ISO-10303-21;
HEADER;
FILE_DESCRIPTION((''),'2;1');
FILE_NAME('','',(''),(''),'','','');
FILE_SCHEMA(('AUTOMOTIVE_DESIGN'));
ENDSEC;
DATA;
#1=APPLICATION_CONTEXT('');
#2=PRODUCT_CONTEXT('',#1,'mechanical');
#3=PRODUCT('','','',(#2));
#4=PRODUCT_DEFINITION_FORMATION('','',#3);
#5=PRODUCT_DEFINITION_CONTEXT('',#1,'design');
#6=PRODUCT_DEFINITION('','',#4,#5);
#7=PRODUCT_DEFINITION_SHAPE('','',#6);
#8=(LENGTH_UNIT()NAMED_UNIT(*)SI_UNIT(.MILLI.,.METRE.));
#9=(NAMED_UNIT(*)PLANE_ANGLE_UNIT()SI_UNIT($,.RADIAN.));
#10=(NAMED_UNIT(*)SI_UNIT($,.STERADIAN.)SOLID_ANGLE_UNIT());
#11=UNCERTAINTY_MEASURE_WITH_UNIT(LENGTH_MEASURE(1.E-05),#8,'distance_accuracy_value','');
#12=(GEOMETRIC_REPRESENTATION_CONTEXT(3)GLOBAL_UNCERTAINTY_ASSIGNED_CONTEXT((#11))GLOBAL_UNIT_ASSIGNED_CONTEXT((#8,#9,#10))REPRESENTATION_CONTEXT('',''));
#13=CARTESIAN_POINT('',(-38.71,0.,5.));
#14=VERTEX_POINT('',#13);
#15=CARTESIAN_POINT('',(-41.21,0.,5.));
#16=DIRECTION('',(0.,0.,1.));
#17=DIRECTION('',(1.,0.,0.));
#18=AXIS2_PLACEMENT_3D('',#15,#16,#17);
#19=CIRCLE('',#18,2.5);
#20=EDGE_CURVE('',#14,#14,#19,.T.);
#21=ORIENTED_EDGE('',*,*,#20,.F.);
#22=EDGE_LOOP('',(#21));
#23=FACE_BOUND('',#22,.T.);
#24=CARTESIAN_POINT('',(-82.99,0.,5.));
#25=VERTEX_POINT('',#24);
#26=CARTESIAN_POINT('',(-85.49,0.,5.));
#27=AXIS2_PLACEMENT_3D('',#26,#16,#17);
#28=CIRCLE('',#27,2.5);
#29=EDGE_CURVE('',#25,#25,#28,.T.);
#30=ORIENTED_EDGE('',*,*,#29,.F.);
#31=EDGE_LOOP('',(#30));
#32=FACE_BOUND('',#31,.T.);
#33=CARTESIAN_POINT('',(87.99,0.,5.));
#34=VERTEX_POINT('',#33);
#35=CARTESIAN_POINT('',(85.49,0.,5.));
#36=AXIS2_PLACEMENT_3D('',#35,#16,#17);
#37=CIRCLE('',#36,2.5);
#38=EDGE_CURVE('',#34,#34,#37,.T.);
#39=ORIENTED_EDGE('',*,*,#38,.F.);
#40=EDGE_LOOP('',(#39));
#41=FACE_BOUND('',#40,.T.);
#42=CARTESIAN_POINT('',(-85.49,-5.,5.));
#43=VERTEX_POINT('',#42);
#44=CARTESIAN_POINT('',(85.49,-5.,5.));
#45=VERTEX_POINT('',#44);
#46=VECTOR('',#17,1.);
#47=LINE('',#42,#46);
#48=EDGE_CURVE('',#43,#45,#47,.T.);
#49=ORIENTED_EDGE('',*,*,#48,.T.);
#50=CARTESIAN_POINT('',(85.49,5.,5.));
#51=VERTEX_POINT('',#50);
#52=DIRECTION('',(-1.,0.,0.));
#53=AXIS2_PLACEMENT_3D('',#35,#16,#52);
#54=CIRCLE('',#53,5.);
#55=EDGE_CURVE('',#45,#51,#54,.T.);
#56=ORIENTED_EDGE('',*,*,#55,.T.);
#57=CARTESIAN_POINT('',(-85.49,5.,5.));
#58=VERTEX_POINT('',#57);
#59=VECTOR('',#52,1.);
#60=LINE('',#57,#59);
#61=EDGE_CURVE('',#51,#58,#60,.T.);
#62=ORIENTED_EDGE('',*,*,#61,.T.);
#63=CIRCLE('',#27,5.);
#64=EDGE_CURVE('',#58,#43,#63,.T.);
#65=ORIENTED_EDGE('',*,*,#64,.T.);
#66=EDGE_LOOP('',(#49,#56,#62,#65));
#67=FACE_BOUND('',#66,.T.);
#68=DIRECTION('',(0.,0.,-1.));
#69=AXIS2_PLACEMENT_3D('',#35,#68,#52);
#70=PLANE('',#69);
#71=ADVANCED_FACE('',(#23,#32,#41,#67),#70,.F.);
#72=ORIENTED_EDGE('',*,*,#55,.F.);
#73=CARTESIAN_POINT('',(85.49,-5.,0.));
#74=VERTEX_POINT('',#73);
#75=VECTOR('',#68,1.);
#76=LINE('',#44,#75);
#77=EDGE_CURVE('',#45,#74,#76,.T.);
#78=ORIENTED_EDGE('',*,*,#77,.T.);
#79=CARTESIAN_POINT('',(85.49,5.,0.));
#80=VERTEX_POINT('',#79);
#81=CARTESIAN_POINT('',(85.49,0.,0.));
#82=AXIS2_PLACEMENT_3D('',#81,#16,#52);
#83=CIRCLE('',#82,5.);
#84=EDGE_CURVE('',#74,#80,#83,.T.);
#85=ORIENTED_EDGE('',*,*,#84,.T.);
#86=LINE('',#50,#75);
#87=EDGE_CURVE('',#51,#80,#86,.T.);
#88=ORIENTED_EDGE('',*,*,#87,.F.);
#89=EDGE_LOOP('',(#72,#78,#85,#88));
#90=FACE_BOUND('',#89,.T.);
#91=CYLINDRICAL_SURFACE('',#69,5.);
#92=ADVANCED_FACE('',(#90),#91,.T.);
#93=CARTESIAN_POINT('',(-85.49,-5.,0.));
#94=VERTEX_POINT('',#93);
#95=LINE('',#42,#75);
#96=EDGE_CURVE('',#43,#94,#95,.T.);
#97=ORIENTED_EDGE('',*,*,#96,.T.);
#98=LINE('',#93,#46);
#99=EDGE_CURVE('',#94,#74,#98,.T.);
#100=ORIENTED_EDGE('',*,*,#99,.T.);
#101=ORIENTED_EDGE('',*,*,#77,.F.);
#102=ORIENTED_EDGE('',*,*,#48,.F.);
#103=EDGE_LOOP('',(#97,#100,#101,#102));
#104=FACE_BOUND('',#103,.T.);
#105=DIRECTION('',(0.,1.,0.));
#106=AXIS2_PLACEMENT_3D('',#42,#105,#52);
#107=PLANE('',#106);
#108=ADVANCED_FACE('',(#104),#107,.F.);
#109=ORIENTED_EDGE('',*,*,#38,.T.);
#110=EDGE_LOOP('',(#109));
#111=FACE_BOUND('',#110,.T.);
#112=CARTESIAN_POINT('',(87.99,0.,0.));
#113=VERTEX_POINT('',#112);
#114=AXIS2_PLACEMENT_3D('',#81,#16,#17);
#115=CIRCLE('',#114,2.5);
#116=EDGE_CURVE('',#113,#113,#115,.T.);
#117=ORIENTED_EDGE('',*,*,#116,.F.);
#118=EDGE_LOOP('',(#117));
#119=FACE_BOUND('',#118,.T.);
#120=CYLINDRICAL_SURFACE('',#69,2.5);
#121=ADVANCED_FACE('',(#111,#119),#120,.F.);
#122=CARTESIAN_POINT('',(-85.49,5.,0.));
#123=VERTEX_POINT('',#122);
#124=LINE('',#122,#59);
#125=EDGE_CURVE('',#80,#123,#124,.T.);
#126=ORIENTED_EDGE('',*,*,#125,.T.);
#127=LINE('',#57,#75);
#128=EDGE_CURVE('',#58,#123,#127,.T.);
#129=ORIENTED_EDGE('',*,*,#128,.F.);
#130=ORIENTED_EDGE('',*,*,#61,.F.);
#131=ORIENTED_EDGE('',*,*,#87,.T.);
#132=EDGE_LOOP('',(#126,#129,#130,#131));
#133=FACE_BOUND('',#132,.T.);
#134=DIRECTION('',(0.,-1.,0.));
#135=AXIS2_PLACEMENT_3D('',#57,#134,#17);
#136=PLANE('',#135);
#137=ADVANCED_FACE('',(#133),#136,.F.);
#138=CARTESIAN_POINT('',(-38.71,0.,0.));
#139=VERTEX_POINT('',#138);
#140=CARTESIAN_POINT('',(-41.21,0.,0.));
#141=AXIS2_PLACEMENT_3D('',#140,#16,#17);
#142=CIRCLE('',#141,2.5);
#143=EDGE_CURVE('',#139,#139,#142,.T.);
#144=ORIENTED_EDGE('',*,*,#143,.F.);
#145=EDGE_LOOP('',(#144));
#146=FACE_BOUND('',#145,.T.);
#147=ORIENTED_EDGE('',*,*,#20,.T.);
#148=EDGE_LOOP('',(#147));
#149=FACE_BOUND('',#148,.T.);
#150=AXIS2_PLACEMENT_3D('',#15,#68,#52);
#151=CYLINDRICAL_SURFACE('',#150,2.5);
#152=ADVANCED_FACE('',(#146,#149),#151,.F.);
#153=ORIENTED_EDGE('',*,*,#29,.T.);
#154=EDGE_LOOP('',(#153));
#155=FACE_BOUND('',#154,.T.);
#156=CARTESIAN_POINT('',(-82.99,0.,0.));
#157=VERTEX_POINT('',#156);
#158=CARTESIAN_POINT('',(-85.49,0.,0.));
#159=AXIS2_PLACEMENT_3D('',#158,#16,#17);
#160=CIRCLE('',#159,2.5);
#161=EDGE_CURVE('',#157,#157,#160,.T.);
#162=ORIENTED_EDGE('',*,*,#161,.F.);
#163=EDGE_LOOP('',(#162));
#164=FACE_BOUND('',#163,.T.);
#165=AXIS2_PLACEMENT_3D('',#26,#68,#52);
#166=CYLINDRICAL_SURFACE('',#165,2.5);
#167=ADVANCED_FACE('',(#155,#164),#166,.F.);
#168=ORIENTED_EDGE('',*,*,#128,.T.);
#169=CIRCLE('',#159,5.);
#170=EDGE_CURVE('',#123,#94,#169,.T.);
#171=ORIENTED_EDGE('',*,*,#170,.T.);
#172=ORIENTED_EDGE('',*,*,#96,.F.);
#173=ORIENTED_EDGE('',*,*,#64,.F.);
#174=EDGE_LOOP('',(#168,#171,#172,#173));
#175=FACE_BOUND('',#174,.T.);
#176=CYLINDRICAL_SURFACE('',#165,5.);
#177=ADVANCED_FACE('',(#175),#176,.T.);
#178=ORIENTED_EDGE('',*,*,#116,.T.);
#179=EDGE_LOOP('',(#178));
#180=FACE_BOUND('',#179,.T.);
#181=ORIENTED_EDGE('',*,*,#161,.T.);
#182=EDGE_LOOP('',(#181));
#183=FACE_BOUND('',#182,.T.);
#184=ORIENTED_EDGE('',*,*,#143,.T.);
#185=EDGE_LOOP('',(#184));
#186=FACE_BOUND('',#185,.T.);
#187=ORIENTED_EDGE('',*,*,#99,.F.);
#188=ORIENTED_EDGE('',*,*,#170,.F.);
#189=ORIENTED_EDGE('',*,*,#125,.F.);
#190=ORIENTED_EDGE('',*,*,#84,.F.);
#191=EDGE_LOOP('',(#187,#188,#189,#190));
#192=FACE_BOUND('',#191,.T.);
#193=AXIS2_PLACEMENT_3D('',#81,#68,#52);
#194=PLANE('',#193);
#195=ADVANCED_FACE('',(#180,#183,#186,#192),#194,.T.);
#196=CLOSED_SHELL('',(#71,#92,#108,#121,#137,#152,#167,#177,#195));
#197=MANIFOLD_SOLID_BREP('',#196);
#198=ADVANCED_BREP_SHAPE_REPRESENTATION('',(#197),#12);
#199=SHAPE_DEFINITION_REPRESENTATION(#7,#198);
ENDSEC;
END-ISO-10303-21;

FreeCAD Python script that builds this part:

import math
import FreeCAD as App
import Part
import Sketcher

V = App.Vector

doc = App.newDocument("Part")
body = doc.addObject("PartDesign::Body", "Body")

sketch1 = body.newObject("Sketcher::SketchObject", "Sketch")
sketch1.AttachmentSupport = (doc.getObject("XY_Plane"), [""])
sketch1.MapMode = "FlatFace"
sketch1.addGeometry([
    Part.LineSegment(V(85.5, 5, 0), V(-85.5, 5, 0)),
    Part.ArcOfCircle(Part.Circle(V(-85.5, 0, 0), V(0, 0, 1), 5), math.radians(90), math.radians(270)),
    Part.LineSegment(V(-85.5, -5, 0), V(85.5, -5, 0)),
    Part.ArcOfCircle(Part.Circle(V(85.5, 0, 0), V(0, 0, 1), 5), math.radians(-90), math.radians(90)),
    Part.Circle(V(85.5, 0, 0), V(0, 0, 1), 2.5),
    Part.Circle(V(-41.2, 0, 0), V(0, 0, 1), 2.5),
    Part.Circle(V(-85.5, 0, 0), V(0, 0, 1), 2.5),
], False)
sketch1.addConstraint([
    Sketcher.Constraint("Tangent", 0, 2, 1, 1),
    Sketcher.Constraint("Tangent", 1, 2, 2, 1),
    Sketcher.Constraint("Tangent", 2, 2, 3, 1),
    Sketcher.Constraint("Tangent", 3, 2, 0, 1),
    Sketcher.Constraint("Horizontal", 0),
    Sketcher.Constraint("Horizontal", 2),
    Sketcher.Constraint("Coincident", 4, 3, 3, 3),
    Sketcher.Constraint("Coincident", 6, 3, 1, 3),
    Sketcher.Constraint("Equal", 4, 5),
    Sketcher.Constraint("Equal", 5, 6),
    Sketcher.Constraint("Symmetric", 1, 3, 3, 3, -1, 1),
    Sketcher.Constraint("PointOnObject", 5, 3, -1),
    Sketcher.Constraint("Diameter", 4, 5.0),
    Sketcher.Constraint("Radius", 1, 5.0),
    Sketcher.Constraint("DistanceX", 0, 2, 0, 1, 170.98),
    Sketcher.Constraint("DistanceX", 5, 3, 3, 3, 126.7),
])
pad1 = body.newObject("PartDesign::Pad", "Pad")
pad1.Profile = sketch1
pad1.Length = 5

doc.recompute()
